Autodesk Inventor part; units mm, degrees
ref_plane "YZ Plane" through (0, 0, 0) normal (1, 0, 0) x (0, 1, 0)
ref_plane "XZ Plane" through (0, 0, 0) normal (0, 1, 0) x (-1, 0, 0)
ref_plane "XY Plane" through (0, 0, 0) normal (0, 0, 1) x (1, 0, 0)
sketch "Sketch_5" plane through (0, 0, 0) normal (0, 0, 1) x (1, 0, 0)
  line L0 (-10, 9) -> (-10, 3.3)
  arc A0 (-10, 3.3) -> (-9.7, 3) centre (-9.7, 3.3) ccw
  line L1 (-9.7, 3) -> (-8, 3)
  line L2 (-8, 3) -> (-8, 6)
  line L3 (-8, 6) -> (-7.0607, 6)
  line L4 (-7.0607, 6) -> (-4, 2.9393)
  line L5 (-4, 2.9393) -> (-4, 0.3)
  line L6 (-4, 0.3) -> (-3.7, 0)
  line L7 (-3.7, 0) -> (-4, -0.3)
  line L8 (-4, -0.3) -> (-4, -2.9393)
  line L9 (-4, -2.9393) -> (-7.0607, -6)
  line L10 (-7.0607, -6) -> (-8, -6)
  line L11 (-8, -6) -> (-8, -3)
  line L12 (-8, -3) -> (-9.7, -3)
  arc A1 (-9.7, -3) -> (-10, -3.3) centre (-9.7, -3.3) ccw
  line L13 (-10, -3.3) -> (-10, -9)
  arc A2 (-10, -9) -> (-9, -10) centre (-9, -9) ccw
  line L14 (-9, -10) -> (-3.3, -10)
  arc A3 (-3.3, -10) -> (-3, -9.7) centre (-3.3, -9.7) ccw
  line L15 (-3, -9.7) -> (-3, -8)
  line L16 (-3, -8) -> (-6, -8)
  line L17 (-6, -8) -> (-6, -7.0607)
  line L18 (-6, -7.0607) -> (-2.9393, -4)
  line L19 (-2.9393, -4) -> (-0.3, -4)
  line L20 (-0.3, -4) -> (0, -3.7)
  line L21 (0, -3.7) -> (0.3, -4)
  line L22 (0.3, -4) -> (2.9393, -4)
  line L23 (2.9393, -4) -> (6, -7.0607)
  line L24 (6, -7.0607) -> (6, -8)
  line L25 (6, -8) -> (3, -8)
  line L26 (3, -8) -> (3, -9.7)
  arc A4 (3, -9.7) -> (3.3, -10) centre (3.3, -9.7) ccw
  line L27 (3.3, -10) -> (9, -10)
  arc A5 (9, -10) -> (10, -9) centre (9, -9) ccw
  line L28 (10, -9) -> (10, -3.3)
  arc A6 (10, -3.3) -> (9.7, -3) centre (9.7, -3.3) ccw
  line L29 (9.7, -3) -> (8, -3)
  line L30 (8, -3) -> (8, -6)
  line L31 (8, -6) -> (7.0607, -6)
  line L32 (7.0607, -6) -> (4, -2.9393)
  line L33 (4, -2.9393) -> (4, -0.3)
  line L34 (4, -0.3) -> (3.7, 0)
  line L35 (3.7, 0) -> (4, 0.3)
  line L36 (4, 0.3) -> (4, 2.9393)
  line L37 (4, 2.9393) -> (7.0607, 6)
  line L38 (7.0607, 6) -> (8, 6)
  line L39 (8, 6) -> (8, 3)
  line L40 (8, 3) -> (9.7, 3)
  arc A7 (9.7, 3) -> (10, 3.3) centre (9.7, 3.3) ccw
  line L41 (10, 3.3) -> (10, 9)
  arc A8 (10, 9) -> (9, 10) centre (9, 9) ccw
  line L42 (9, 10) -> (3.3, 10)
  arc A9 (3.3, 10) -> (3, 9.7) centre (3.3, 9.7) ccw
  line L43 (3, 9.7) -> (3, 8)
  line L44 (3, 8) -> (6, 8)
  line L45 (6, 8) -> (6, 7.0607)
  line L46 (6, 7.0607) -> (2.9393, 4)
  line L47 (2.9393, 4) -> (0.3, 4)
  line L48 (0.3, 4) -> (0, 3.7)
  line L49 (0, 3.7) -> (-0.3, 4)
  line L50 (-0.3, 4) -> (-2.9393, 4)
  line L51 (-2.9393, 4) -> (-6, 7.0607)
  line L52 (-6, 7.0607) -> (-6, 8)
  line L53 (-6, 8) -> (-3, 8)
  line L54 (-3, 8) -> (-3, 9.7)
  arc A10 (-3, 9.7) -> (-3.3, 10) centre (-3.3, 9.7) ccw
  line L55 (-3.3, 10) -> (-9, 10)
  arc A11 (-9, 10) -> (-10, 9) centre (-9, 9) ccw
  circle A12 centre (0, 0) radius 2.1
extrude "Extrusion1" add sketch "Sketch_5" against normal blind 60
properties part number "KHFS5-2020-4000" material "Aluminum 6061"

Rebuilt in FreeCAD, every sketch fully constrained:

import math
import FreeCAD as App
import Part
import Sketcher
from FreeCAD import Vector
Q = App.Units.Quantity

doc = App.newDocument("Part")
body = doc.addObject("PartDesign::Body", "Body")

sketch1 = body.newObject("Sketcher::SketchObject", "Sketch")
sketch1.AttachmentSupport = (doc.getObject("XY_Plane"), [""])
sketch1.MapMode = "FlatFace"
sketch1.addGeometry([
    Part.ArcOfCircle(Part.Circle(Vector(-9, 9, 0), Vector(0, 0, 1), 1), math.radians(90), math.radians(180)),
    Part.LineSegment(Vector(-10, 9, 0), Vector(-10, 3.3, 0)),
    Part.ArcOfCircle(Part.Circle(Vector(-9.7, 3.3, 0), Vector(0, 0, 1), 0.3), math.radians(180), math.radians(270)),
    Part.LineSegment(Vector(-9.7, 3, 0), Vector(-8, 3, 0)),
    Part.LineSegment(Vector(-8, 3, 0), Vector(-8, 6, 0)),
    Part.LineSegment(Vector(-8, 6, 0), Vector(-7.06, 6, 0)),
    Part.LineSegment(Vector(-7.06, 6, 0), Vector(-4, 2.94, 0)),
    Part.LineSegment(Vector(-4, 2.94, 0), Vector(-4, 0.3, 0)),
    Part.LineSegment(Vector(-4, 0.3, 0), Vector(-3.7, 0, 0)),
    Part.LineSegment(Vector(-3.7, 0, 0), Vector(-4, -0.3, 0)),
    Part.LineSegment(Vector(-4, -0.3, 0), Vector(-4, -2.94, 0)),
    Part.LineSegment(Vector(-4, -2.94, 0), Vector(-7.06, -6, 0)),
    Part.LineSegment(Vector(-7.06, -6, 0), Vector(-8, -6, 0)),
    Part.LineSegment(Vector(-8, -6, 0), Vector(-8, -3, 0)),
    Part.LineSegment(Vector(-8, -3, 0), Vector(-9.7, -3, 0)),
    Part.ArcOfCircle(Part.Circle(Vector(-9.7, -3.3, 0), Vector(0, 0, 1), 0.3), math.radians(90), math.radians(180)),
    Part.LineSegment(Vector(-10, -3.3, 0), Vector(-10, -9, 0)),
    Part.ArcOfCircle(Part.Circle(Vector(-9, -9, 0), Vector(0, 0, 1), 1), math.radians(180), math.radians(270)),
    Part.LineSegment(Vector(-9, -10, 0), Vector(-3.3, -10, 0)),
    Part.ArcOfCircle(Part.Circle(Vector(-3.3, -9.7, 0), Vector(0, 0, 1), 0.3), math.radians(-90), math.radians(0)),
    Part.LineSegment(Vector(-3, -9.7, 0), Vector(-3, -8, 0)),
    Part.LineSegment(Vector(-3, -8, 0), Vector(-6, -8, 0)),
    Part.LineSegment(Vector(-6, -8, 0), Vector(-6, -7.06, 0)),
    Part.LineSegment(Vector(-6, -7.06, 0), Vector(-2.94, -4, 0)),
    Part.LineSegment(Vector(-2.94, -4, 0), Vector(-0.3, -4, 0)),
    Part.LineSegment(Vector(-0.3, -4, 0), Vector(0, -3.7, 0)),
    Part.LineSegment(Vector(0, -3.7, 0), Vector(0.3, -4, 0)),
    Part.LineSegment(Vector(0.3, -4, 0), Vector(2.94, -4, 0)),
    Part.LineSegment(Vector(2.94, -4, 0), Vector(6, -7.06, 0)),
    Part.LineSegment(Vector(6, -7.06, 0), Vector(6, -8, 0)),
    Part.LineSegment(Vector(6, -8, 0), Vector(3, -8, 0)),
    Part.LineSegment(Vector(3, -8, 0), Vector(3, -9.7, 0)),
    Part.ArcOfCircle(Part.Circle(Vector(3.3, -9.7, 0), Vector(0, 0, 1), 0.3), math.radians(180), math.radians(270)),
    Part.LineSegment(Vector(3.3, -10, 0), Vector(9, -10, 0)),
    Part.ArcOfCircle(Part.Circle(Vector(9, -9, 0), Vector(0, 0, 1), 1), math.radians(-90), math.radians(0)),
    Part.LineSegment(Vector(10, -9, 0), Vector(10, -3.3, 0)),
    Part.ArcOfCircle(Part.Circle(Vector(9.7, -3.3, 0), Vector(0, 0, 1), 0.3), math.radians(0), math.radians(90)),
    Part.LineSegment(Vector(9.7, -3, 0), Vector(8, -3, 0)),
    Part.LineSegment(Vector(8, -3, 0), Vector(8, -6, 0)),
    Part.LineSegment(Vector(8, -6, 0), Vector(7.06, -6, 0)),
    Part.LineSegment(Vector(7.06, -6, 0), Vector(4, -2.94, 0)),
    Part.LineSegment(Vector(4, -2.94, 0), Vector(4, -0.3, 0)),
    Part.LineSegment(Vector(4, -0.3, 0), Vector(3.7, 0, 0)),
    Part.LineSegment(Vector(3.7, 0, 0), Vector(4, 0.3, 0)),
    Part.LineSegment(Vector(4, 0.3, 0), Vector(4, 2.94, 0)),
    Part.LineSegment(Vector(4, 2.94, 0), Vector(7.06, 6, 0)),
    Part.LineSegment(Vector(7.06, 6, 0), Vector(8, 6, 0)),
    Part.LineSegment(Vector(8, 6, 0), Vector(8, 3, 0)),
    Part.LineSegment(Vector(8, 3, 0), Vector(9.7, 3, 0)),
    Part.ArcOfCircle(Part.Circle(Vector(9.7, 3.3, 0), Vector(0, 0, 1), 0.3), math.radians(-90), math.radians(0)),
    Part.LineSegment(Vector(10, 3.3, 0), Vector(10, 9, 0)),
    Part.ArcOfCircle(Part.Circle(Vector(9, 9, 0), Vector(0, 0, 1), 1), math.radians(0), math.radians(90)),
    Part.LineSegment(Vector(9, 10, 0), Vector(3.3, 10, 0)),
    Part.ArcOfCircle(Part.Circle(Vector(3.3, 9.7, 0), Vector(0, 0, 1), 0.3), math.radians(90), math.radians(180)),
    Part.LineSegment(Vector(3, 9.7, 0), Vector(3, 8, 0)),
    Part.LineSegment(Vector(3, 8, 0), Vector(6, 8, 0)),
    Part.LineSegment(Vector(6, 8, 0), Vector(6, 7.06, 0)),
    Part.LineSegment(Vector(6, 7.06, 0), Vector(2.94, 4, 0)),
    Part.LineSegment(Vector(2.94, 4, 0), Vector(0.3, 4, 0)),
    Part.LineSegment(Vector(0.3, 4, 0), Vector(0, 3.7, 0)),
    Part.LineSegment(Vector(0, 3.7, 0), Vector(-0.3, 4, 0)),
    Part.LineSegment(Vector(-0.3, 4, 0), Vector(-2.94, 4, 0)),
    Part.LineSegment(Vector(-2.94, 4, 0), Vector(-6, 7.06, 0)),
    Part.LineSegment(Vector(-6, 7.06, 0), Vector(-6, 8, 0)),
    Part.LineSegment(Vector(-6, 8, 0), Vector(-3, 8, 0)),
    Part.LineSegment(Vector(-3, 8, 0), Vector(-3, 9.7, 0)),
    Part.ArcOfCircle(Part.Circle(Vector(-3.3, 9.7, 0), Vector(0, 0, 1), 0.3), math.radians(0), math.radians(90)),
    Part.LineSegment(Vector(-3.3, 10, 0), Vector(-9, 10, 0)),
    Part.Circle(Vector(0, 0, 0), Vector(0, 0, 1), 2.1),
], False)
sketch1.addConstraint([
    Sketcher.Constraint("Tangent", 0, 2, 1, 1),
    Sketcher.Constraint("Tangent", 1, 2, 2, 1),
    Sketcher.Constraint("Tangent", 2, 2, 3, 1),
    Sketcher.Constraint("Coincident", 3, 2, 4, 1),
    Sketcher.Constraint("Coincident", 4, 2, 5, 1),
    Sketcher.Constraint("Coincident", 5, 2, 6, 1),
    Sketcher.Constraint("Coincident", 6, 2, 7, 1),
    Sketcher.Constraint("Coincident", 7, 2, 8, 1),
    Sketcher.Constraint("Coincident", 8, 2, 9, 1),
    Sketcher.Constraint("Coincident", 9, 2, 10, 1),
    Sketcher.Constraint("Coincident", 10, 2, 11, 1),
    Sketcher.Constraint("Coincident", 11, 2, 12, 1),
    Sketcher.Constraint("Coincident", 12, 2, 13, 1),
    Sketcher.Constraint("Coincident", 13, 2, 14, 1),
    Sketcher.Constraint("Tangent", 14, 2, 15, 1),
    Sketcher.Constraint("Tangent", 15, 2, 16, 1),
    Sketcher.Constraint("Tangent", 16, 2, 17, 1),
    Sketcher.Constraint("Tangent", 17, 2, 18, 1),
    Sketcher.Constraint("Tangent", 18, 2, 19, 1),
    Sketcher.Constraint("Tangent", 19, 2, 20, 1),
    Sketcher.Constraint("Coincident", 20, 2, 21, 1),
    Sketcher.Constraint("Coincident", 21, 2, 22, 1),
    Sketcher.Constraint("Coincident", 22, 2, 23, 1),
    Sketcher.Constraint("Coincident", 23, 2, 24, 1),
    Sketcher.Constraint("Coincident", 24, 2, 25, 1),
    Sketcher.Constraint("Coincident", 25, 2, 26, 1),
    Sketcher.Constraint("Coincident", 26, 2, 27, 1),
    Sketcher.Constraint("Coincident", 27, 2, 28, 1),
    Sketcher.Constraint("Coincident", 28, 2, 29, 1),
    Sketcher.Constraint("Coincident", 29, 2, 30, 1),
    Sketcher.Constraint("Coincident", 30, 2, 31, 1),
    Sketcher.Constraint("Tangent", 31, 2, 32, 1),
    Sketcher.Constraint("Tangent", 32, 2, 33, 1),
    Sketcher.Constraint("Tangent", 33, 2, 34, 1),
    Sketcher.Constraint("Tangent", 34, 2, 35, 1),
    Sketcher.Constraint("Tangent", 35, 2, 36, 1),
    Sketcher.Constraint("Tangent", 36, 2, 37, 1),
    Sketcher.Constraint("Coincident", 37, 2, 38, 1),
    Sketcher.Constraint("Coincident", 38, 2, 39, 1),
    Sketcher.Constraint("Coincident", 39, 2, 40, 1),
    Sketcher.Constraint("Coincident", 40, 2, 41, 1),
    Sketcher.Constraint("Coincident", 41, 2, 42, 1),
    Sketcher.Constraint("Coincident", 42, 2, 43, 1),
    Sketcher.Constraint("Coincident", 43, 2, 44, 1),
    Sketcher.Constraint("Coincident", 44, 2, 45, 1),
    Sketcher.Constraint("Coincident", 45, 2, 46, 1),
    Sketcher.Constraint("Coincident", 46, 2, 47, 1),
    Sketcher.Constraint("Coincident", 47, 2, 48, 1),
    Sketcher.Constraint("Tangent", 48, 2, 49, 1),
    Sketcher.Constraint("Tangent", 49, 2, 50, 1),
    Sketcher.Constraint("Tangent", 50, 2, 51, 1),
    Sketcher.Constraint("Tangent", 51, 2, 52, 1),
    Sketcher.Constraint("Tangent", 52, 2, 53, 1),
    Sketcher.Constraint("Tangent", 53, 2, 54, 1),
    Sketcher.Constraint("Coincident", 54, 2, 55, 1),
    Sketcher.Constraint("Coincident", 55, 2, 56, 1),
    Sketcher.Constraint("Coincident", 56, 2, 57, 1),
    Sketcher.Constraint("Coincident", 57, 2, 58, 1),
    Sketcher.Constraint("Coincident", 58, 2, 59, 1),
    Sketcher.Constraint("Coincident", 59, 2, 60, 1),
    Sketcher.Constraint("Coincident", 60, 2, 61, 1),
    Sketcher.Constraint("Coincident", 61, 2, 62, 1),
    Sketcher.Constraint("Coincident", 62, 2, 63, 1),
    Sketcher.Constraint("Coincident", 63, 2, 64, 1),
    Sketcher.Constraint("Coincident", 64, 2, 65, 1),
    Sketcher.Constraint("Tangent", 65, 2, 66, 1),
    Sketcher.Constraint("Tangent", 66, 2, 67, 1),
    Sketcher.Constraint("Tangent", 67, 2, 0, 1),
    Sketcher.Constraint("Vertical", 1),
    Sketcher.Constraint("Horizontal", 3),
    Sketcher.Constraint("Vertical", 4),
    Sketcher.Constraint("Horizontal", 5),
    Sketcher.Constraint("Vertical", 7),
    Sketcher.Constraint("Vertical", 10),
    Sketcher.Constraint("Horizontal", 12),
    Sketcher.Constraint("Vertical", 13),
    Sketcher.Constraint("Horizontal", 14),
    Sketcher.Constraint("Vertical", 16),
    Sketcher.Constraint("Horizontal", 18),
    Sketcher.Constraint("Vertical", 20),
    Sketcher.Constraint("Horizontal", 21),
    Sketcher.Constraint("Vertical", 22),
    Sketcher.Constraint("Horizontal", 24),
    Sketcher.Constraint("Horizontal", 27),
    Sketcher.Constraint("Vertical", 29),
    Sketcher.Constraint("Horizontal", 30),
    Sketcher.Constraint("Vertical", 31),
    Sketcher.Constraint("Horizontal", 33),
    Sketcher.Constraint("Vertical", 35),
    Sketcher.Constraint("Horizontal", 37),
    Sketcher.Constraint("Vertical", 38),
    Sketcher.Constraint("Horizontal", 39),
    Sketcher.Constraint("Vertical", 41),
    Sketcher.Constraint("Vertical", 44),
    Sketcher.Constraint("Horizontal", 46),
    Sketcher.Constraint("Vertical", 47),
    Sketcher.Constraint("Horizontal", 48),
    Sketcher.Constraint("Vertical", 50),
    Sketcher.Constraint("Horizontal", 52),
    Sketcher.Constraint("Vertical", 54),
    Sketcher.Constraint("Horizontal", 55),
    Sketcher.Constraint("Vertical", 56),
    Sketcher.Constraint("Horizontal", 58),
    Sketcher.Constraint("Horizontal", 61),
    Sketcher.Constraint("Vertical", 63),
    Sketcher.Constraint("Horizontal", 64),
    Sketcher.Constraint("Vertical", 65),
    Sketcher.Constraint("Horizontal", 67),
    Sketcher.Constraint("Coincident", 68, 3, -1, 1),
    Sketcher.Constraint("Equal", 2, 15),
    Sketcher.Constraint("Equal", 0, 17),
    Sketcher.Constraint("Equal", 15, 19),
    Sketcher.Constraint("Equal", 19, 32),
    Sketcher.Constraint("Equal", 17, 34),
    Sketcher.Constraint("Equal", 32, 36),
    Sketcher.Constraint("Equal", 36, 49),
    Sketcher.Constraint("Equal", 34, 51),
    Sketcher.Constraint("Equal", 49, 53),
    Sketcher.Constraint("Equal", 53, 66),
    Sketcher.Constraint("Symmetric", 0, 3, 34, 3, -1, 1),
    Sketcher.Constraint("Symmetric", 15, 3, 49, 3, -1, 1),
    Sketcher.Constraint("Symmetric", 19, 3, 53, 3, -1, 1),
    Sketcher.Constraint("Symmetric", 3, 2, 37, 2, -1, 1),
    Sketcher.Constraint("Symmetric", 5, 2, 39, 2, -1, 1),
    Sketcher.Constraint("Symmetric", 6, 2, 40, 2, -1, 1),
    Sketcher.Constraint("Symmetric", 8, 2, 42, 2, -1, 1),
    Sketcher.Constraint("Symmetric", 9, 2, 43, 2, -1, 1),
    Sketcher.Constraint("Symmetric", 11, 2, 45, 2, -1, 1),
    Sketcher.Constraint("Symmetric", 21, 2, 55, 2, -1, 1),
    Sketcher.Constraint("Symmetric", 23, 2, 57, 2, -1, 1),
    Sketcher.Constraint("Symmetric", 25, 2, 59, 2, -1, 1),
    Sketcher.Constraint("Symmetric", 26, 2, 60, 2, -1, 1),
    Sketcher.Constraint("Symmetric", 28, 2, 62, 2, -1, 1),
    Sketcher.Constraint("Symmetric", 30, 2, 64, 2, -1, 1),
    Sketcher.Constraint("Symmetric", 19, 3, 32, 3, -2),
    Sketcher.Constraint("Symmetric", 15, 3, 36, 3, -2),
    Sketcher.Constraint("Symmetric", 24, 2, 26, 2, -2),
    Sketcher.Constraint("Symmetric", 22, 2, 28, 2, -2),
    Sketcher.Constraint("Symmetric", 12, 2, 38, 2, -2),
    Sketcher.Constraint("Symmetric", 10, 2, 40, 2, -2),
    Sketcher.Constraint("PointOnObject", 8, 2, -1),
    Sketcher.Constraint("PointOnObject", 25, 2, -2),
    Sketcher.Constraint("Parallel", 6, 8),
    Sketcher.Constraint("Perpendicular", 8, 9),
    Sketcher.Constraint("Parallel", 9, 11),
    Sketcher.Constraint("Parallel", 11, 23),
    Sketcher.Constraint("Parallel", 23, 25),
    Sketcher.Constraint("Perpendicular", 25, 26),
    Sketcher.Constraint("Parallel", 26, 28),
    Sketcher.Constraint("Parallel", 40, 42),
    Sketcher.Constraint("Parallel", 43, 45),
    Sketcher.Constraint("Parallel", 45, 57),
    Sketcher.Constraint("Parallel", 57, 59),
    Sketcher.Constraint("Parallel", 60, 62),
    Sketcher.Constraint("Horizontal", 21, 2, 29, 2),
    Sketcher.Constraint("Vertical", 38, 2, 46, 2),
    Sketcher.Constraint("Equal", 67, 1),
    Sketcher.Constraint("Equal", 64, 4),
    Sketcher.Constraint("Equal", 61, 7),
    Sketcher.Constraint("Equal", 48, 20),
    Sketcher.Constraint("Equal", 46, 22),
    Sketcher.Constraint("Equal", 11, 23),
    Sketcher.Constraint("Equal", 9, 25),
    Sketcher.Constraint("Radius", 0, Q("1 mm")),
    Sketcher.Constraint("Diameter", 68, Q("4.2 mm")),
    Sketcher.Constraint("Radius", 2, Q("0.3 mm")),
    Sketcher.Constraint("DistanceX", 21, 2, 21, 1, Q("3 mm")),
    Sketcher.Constraint("DistanceX", 3, 1, 3, 2, Q("1.7 mm")),
    Sketcher.Constraint("DistanceX", 18, 1, 18, 2, Q("5.7 mm")),
    Sketcher.Constraint("DistanceX", 0, 3, -1, 1, Q("9 mm")),
    Sketcher.Constraint("DistanceX", 6, 2, -1, 1, Q("4 mm")),
    Sketcher.Constraint("DistanceY", -1, 1, 7, 2, Q("0.3 mm")),
    Sketcher.Constraint("DistanceX", 5, 1, 5, 2, Q("0.9393 mm")),
])
pad1 = body.newObject("PartDesign::Pad", "Pad")
pad1.Profile = sketch1
pad1.Length = 60
pad1.Reversed = True

doc.recompute()
